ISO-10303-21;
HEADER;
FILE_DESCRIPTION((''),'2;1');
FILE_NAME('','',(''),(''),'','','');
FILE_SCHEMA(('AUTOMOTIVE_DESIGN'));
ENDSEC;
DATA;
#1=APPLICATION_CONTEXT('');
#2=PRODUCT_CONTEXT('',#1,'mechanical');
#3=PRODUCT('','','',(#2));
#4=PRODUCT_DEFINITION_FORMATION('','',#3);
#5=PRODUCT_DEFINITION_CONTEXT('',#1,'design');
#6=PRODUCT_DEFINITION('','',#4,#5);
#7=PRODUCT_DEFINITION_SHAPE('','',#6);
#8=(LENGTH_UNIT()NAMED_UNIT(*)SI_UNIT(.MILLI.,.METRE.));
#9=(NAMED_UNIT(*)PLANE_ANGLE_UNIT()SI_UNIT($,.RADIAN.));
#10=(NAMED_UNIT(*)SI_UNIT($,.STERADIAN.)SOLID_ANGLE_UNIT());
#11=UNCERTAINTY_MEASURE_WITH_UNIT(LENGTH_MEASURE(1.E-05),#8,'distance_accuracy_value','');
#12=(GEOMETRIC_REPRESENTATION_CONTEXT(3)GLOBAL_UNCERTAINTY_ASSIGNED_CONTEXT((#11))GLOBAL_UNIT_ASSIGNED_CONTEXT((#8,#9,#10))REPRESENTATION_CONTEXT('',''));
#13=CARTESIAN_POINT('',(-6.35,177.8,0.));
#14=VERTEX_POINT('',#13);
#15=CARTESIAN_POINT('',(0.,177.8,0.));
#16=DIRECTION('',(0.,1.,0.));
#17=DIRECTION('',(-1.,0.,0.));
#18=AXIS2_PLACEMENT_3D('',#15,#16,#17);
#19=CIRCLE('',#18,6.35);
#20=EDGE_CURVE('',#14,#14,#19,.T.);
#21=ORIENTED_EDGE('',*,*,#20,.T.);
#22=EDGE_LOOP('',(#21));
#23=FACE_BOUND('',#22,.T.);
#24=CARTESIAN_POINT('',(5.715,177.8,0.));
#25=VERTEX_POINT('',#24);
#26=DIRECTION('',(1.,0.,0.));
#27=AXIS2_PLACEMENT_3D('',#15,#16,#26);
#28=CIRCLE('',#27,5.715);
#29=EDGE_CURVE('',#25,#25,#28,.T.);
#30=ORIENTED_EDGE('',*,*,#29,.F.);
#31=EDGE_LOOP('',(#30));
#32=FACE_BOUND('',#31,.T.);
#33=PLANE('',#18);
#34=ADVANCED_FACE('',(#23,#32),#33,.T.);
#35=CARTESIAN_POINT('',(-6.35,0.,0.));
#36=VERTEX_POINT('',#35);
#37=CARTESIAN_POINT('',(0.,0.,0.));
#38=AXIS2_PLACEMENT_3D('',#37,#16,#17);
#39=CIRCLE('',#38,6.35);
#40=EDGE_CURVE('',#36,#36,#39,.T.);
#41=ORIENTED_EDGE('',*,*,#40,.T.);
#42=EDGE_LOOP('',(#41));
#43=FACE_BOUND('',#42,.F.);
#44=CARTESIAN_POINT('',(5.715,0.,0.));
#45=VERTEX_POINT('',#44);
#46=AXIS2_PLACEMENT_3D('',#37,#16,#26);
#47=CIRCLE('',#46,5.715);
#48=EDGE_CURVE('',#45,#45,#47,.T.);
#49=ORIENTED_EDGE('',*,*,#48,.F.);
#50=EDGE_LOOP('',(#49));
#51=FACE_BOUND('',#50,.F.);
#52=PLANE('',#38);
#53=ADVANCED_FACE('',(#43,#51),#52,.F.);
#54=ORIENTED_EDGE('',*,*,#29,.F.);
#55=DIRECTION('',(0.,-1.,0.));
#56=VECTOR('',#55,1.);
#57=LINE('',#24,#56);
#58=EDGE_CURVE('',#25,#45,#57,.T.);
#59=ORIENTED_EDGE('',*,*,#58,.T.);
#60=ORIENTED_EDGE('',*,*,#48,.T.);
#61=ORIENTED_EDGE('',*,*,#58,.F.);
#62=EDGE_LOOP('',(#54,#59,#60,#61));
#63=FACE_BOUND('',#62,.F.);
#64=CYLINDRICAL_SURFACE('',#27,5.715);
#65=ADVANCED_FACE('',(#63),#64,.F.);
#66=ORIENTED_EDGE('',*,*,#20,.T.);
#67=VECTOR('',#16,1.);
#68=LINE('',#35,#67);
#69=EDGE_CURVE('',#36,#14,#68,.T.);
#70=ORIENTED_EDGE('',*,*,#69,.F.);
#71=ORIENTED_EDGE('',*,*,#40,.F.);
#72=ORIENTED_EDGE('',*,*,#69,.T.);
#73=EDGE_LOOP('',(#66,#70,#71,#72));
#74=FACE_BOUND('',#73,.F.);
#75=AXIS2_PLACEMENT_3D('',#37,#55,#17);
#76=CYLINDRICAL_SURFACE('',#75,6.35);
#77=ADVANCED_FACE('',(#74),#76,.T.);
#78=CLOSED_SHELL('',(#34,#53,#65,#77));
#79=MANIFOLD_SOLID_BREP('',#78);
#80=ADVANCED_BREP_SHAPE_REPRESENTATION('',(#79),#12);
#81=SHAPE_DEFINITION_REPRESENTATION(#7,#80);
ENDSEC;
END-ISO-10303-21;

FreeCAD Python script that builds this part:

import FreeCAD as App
import Part
import Sketcher
Q = App.Units.Quantity

doc = App.newDocument("Part")
params = doc.addObject("Spreadsheet::Sheet", "Params")
for row, (alias, value) in enumerate([
    ("sketch1_diameter", "0.5 in"),
    ("pad1_length", "7 in"),
    ("sketch2_diameter", "0.45 in"),
    ("pocket1_length", "7 in"),
], start=1):
    params.set(f"A{row}", alias)
    params.set(f"B{row}", "=" + value)
    params.setAlias(f"B{row}", alias)

body = doc.addObject("PartDesign::Body", "Body")

sketch1 = body.newObject("Sketcher::SketchObject", "Sketch")
sketch1.AttachmentSupport = (doc.getObject("XZ_Plane"), [""])
sketch1.MapMode = "FlatFace"
sketch1.addGeometry(Part.Circle(App.Vector(0, 0, 0), App.Vector(0, 0, 1), 6.35), False)
sketch1.addConstraint(Sketcher.Constraint("Coincident", 0, 3, -1, 1))
sketch1.addConstraint(Sketcher.Constraint("Diameter", 0, Q("0.5 in")))
sketch1.setExpression("Constraints[1]", "Params.sketch1_diameter")
pad1 = body.newObject("PartDesign::Pad", "Pad")
pad1.Profile = sketch1
pad1.setExpression("Length", "Params.pad1_length")
pad1.Reversed = True

sketch2 = body.newObject("Sketcher::SketchObject", "Sketch001")
sketch2.AttachmentSupport = (doc.getObject("XZ_Plane"), [""])
sketch2.MapMode = "FlatFace"
sketch2.AttachmentOffset = App.Placement(App.Vector(0, 0, -7 * 25.4), App.Rotation())
sketch2.addGeometry(Part.Circle(App.Vector(0, 0, 0), App.Vector(0, 0, 1), 5.715), False)
sketch2.addConstraint(Sketcher.Constraint("Coincident", 0, 3, -1, 1))
sketch2.addConstraint(Sketcher.Constraint("Diameter", 0, Q("0.45 in")))
sketch2.setExpression("Constraints[1]", "Params.sketch2_diameter")
pocket1 = body.newObject("PartDesign::Pocket", "Pocket")
pocket1.Profile = sketch2
pocket1.setExpression("Length", "Params.pocket1_length")
pocket1.Reversed = True

doc.recompute()
